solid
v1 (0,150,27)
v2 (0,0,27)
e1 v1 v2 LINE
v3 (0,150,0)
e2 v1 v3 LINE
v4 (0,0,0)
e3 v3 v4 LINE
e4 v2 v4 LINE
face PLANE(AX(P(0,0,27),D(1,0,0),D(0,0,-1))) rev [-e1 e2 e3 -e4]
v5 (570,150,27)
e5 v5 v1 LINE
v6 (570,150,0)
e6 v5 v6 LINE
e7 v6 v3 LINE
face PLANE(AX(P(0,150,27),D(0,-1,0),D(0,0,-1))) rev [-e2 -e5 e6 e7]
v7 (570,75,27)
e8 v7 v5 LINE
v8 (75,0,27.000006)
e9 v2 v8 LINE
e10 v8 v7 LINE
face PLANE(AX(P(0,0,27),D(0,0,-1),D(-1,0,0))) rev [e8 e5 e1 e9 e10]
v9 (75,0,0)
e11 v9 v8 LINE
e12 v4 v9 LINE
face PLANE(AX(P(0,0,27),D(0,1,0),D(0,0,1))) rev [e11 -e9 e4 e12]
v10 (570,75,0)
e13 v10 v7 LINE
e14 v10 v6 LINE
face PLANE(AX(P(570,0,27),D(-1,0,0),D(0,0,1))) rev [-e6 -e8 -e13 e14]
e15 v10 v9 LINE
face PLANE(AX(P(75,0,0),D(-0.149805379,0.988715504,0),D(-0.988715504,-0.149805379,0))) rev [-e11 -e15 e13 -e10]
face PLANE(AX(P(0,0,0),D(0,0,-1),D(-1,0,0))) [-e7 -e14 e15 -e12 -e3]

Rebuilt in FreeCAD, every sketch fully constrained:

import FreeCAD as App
import Part
import Sketcher

V = App.Vector
Q = App.Units.Quantity


def add_polygon(sketch, points):
    """Adds a closed chain of lines whose ends are joined by coincident constraints."""
    first, n = sketch.GeometryCount, len(points)
    for a, b in zip(points, points[1:] + points[:1]):
        sketch.addGeometry(Part.LineSegment(App.Vector(*a, 0), App.Vector(*b, 0)), False)
    for i in range(n):
        sketch.addConstraint(Sketcher.Constraint("Coincident", first + i, 2, first + (i + 1) % n, 1))

doc = App.newDocument("Part")
body = doc.addObject("PartDesign::Body", "Body")

sketch1 = doc.addObject("Sketcher::SketchObject", "Sketch")
body.addObject(sketch1)
sketch1.AttachmentSupport = (doc.XY_Plane, [""])
sketch1.MapMode = "FlatFace"
add_polygon(sketch1, [(0, 150), (0, 0), (570, 0), (570, 150)])
sketch1.addConstraint([
    Sketcher.Constraint("Vertical", 0),
    Sketcher.Constraint("Horizontal", 1),
    Sketcher.Constraint("Vertical", 2),
    Sketcher.Constraint("Horizontal", 3),
    Sketcher.Constraint("Coincident", 0, 2, -1, 1),
    Sketcher.Constraint("DistanceX", 1, 1, 1, 2, Q("570 mm")),
    Sketcher.Constraint("DistanceY", 0, 2, 0, 1, Q("150 mm")),
])
pad1 = doc.addObject("PartDesign::Pad", "Pad")
body.addObject(pad1)
pad1.Profile = sketch1
pad1.Length = 27

sketch2 = doc.addObject("Sketcher::SketchObject", "Sketch001")
body.addObject(sketch2)
sketch2.AttachmentSupport = (doc.XY_Plane, [""])
sketch2.MapMode = "FlatFace"
sketch2.AttachmentOffset = App.Placement(V(0, 0, 27), App.Rotation())
add_polygon(sketch2, [(570, 75), (75, 0), (570, 0)])
sketch2.addConstraint([
    Sketcher.Constraint("Horizontal", 1),
    Sketcher.Constraint("Vertical", 2),
    Sketcher.Constraint("PointOnObject", 0, 2, -1),
    Sketcher.Constraint("DistanceX", 1, 1, 1, 2, Q("495 mm")),
    Sketcher.Constraint("DistanceY", 2, 1, 2, 2, Q("75 mm")),
    Sketcher.Constraint("DistanceX", -1, 1, 0, 2, Q("75 mm")),
])
pocket1 = doc.addObject("PartDesign::Pocket", "Pocket")
body.addObject(pocket1)
pocket1.Profile = sketch2
pocket1.Type = "ThroughAll"
pocket1.Midplane = True

doc.recompute()
